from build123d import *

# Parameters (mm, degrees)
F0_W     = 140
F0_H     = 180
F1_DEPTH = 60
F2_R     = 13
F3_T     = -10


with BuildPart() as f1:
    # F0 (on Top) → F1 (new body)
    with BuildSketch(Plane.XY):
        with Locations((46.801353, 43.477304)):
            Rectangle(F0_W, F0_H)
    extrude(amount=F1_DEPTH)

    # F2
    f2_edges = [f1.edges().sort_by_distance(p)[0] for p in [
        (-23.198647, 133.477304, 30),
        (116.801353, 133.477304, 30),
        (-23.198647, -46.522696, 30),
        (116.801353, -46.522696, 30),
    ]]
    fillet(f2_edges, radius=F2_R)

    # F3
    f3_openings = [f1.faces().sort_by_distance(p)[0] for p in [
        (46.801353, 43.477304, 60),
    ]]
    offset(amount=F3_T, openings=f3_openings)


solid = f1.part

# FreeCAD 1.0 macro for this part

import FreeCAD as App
import Part
import Sketcher
Q = App.Units.Quantity


def edges_at(feature, points):
    """Names of the edges that pass closest to the given points."""
    edges = feature.Shape.Edges
    near = lambda p: min(range(len(edges)), key=lambda i: edges[i].distToShape(Part.Vertex(*p))[0])
    return sorted({f"Edge{near(p) + 1}" for p in points})


def faces_at(feature, points):
    """Names of the faces that lie closest to the given points."""
    faces = feature.Shape.Faces
    near = lambda p: min(range(len(faces)), key=lambda i: faces[i].distToShape(Part.Vertex(*p))[0])
    return sorted({f"Face{near(p) + 1}" for p in points})

doc = App.newDocument("Part")
body = doc.addObject("PartDesign::Body", "Body")

# Sketch on XY plane
sketch1 = body.newObject("Sketcher::SketchObject", "Sketch")
sketch1.AttachmentSupport = (doc.getObject("XY_Plane"), [""])
sketch1.MapMode = "FlatFace"
sketch1.addGeometry(Part.LineSegment(App.Vector(-23, 133, 0), App.Vector(-23, -47, 0)), False)
sketch1.addGeometry(Part.LineSegment(App.Vector(-23, -47, 0), App.Vector(117, -47, 0)), False)
sketch1.addGeometry(Part.LineSegment(App.Vector(117, -47, 0), App.Vector(117, 133, 0)), False)
sketch1.addGeometry(Part.LineSegment(App.Vector(117, 133, 0), App.Vector(-23, 133, 0)), False)
sketch1.addConstraint(Sketcher.Constraint("Coincident", 0, 2, 1, 1))
sketch1.addConstraint(Sketcher.Constraint("Coincident", 1, 2, 2, 1))
sketch1.addConstraint(Sketcher.Constraint("Coincident", 2, 2, 3, 1))
sketch1.addConstraint(Sketcher.Constraint("Coincident", 3, 2, 0, 1))
sketch1.addConstraint(Sketcher.Constraint("Vertical", 0))
sketch1.addConstraint(Sketcher.Constraint("Horizontal", 1))
sketch1.addConstraint(Sketcher.Constraint("Vertical", 2))
sketch1.addConstraint(Sketcher.Constraint("Horizontal", 3))
sketch1.addConstraint(Sketcher.Constraint("DistanceX", 1, 1, 1, 2, Q("140 mm")))
sketch1.addConstraint(Sketcher.Constraint("DistanceY", 0, 2, 0, 1, Q("180 mm")))
sketch1.addConstraint(Sketcher.Constraint("DistanceX", 0, 2, -1, 1, Q("23.198647 mm")))
sketch1.addConstraint(Sketcher.Constraint("DistanceY", 0, 2, -1, 1, Q("46.522696 mm")))
pad1 = body.newObject("PartDesign::Pad", "Pad")
pad1.Profile = sketch1
pad1.Length = 60
doc.recompute()

fillet = body.newObject("PartDesign::Fillet", "Fillet")
fillet.Base = (pad1, edges_at(pad1, [
    (-23.199, 133.477, 30),
    (116.801, 133.477, 30),
    (-23.199, -46.523, 30),
    (116.801, -46.523, 30),
]))
fillet.Radius = 13
doc.recompute()

thickness = body.newObject("PartDesign::Thickness", "Thickness")
thickness.Base = (fillet, faces_at(fillet, [(46.801, 43.477, 60)]))
thickness.Value = 10
thickness.Reversed = True
thickness.Join = "Arc"

doc.recompute()
